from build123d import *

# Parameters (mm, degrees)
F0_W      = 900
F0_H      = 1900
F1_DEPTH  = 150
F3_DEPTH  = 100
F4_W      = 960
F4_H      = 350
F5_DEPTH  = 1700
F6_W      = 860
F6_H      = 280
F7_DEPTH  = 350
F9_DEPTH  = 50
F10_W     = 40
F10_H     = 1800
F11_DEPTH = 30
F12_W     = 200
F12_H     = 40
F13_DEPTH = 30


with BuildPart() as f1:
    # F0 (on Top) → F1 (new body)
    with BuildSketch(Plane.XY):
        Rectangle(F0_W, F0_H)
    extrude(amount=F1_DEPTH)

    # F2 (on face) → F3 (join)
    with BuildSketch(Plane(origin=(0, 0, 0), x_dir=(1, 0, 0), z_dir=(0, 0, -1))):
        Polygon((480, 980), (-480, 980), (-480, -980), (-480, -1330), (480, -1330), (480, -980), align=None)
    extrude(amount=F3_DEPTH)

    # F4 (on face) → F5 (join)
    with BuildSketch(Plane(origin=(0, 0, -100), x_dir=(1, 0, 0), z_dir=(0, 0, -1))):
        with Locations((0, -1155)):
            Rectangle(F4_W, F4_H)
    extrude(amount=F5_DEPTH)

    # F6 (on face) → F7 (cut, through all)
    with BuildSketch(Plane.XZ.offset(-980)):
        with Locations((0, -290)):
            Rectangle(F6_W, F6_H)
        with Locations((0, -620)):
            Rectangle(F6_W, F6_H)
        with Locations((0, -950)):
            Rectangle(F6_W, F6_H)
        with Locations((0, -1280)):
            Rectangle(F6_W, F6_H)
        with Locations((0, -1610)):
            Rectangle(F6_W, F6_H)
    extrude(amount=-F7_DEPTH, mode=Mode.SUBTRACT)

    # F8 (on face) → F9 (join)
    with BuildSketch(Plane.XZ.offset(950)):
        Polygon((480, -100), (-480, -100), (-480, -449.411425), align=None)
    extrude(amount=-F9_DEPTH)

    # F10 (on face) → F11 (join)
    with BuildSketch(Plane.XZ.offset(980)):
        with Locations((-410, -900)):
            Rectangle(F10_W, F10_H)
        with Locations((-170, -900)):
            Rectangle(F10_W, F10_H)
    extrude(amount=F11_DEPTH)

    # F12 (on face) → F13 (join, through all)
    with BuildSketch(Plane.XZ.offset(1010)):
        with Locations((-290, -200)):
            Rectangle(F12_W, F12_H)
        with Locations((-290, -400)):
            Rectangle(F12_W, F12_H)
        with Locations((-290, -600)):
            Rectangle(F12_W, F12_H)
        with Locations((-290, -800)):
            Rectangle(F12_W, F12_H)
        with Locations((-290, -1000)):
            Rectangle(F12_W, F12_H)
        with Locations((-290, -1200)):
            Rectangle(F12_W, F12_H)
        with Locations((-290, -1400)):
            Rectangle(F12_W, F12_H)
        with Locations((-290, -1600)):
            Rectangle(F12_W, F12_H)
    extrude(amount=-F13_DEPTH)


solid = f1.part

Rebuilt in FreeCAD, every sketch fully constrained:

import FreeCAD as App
import Part
import Sketcher

V = App.Vector
Q = App.Units.Quantity


def add_polygon(sketch, points):
    """Adds a closed chain of lines whose ends are joined by coincident constraints."""
    first, n = sketch.GeometryCount, len(points)
    for a, b in zip(points, points[1:] + points[:1]):
        sketch.addGeometry(Part.LineSegment(App.Vector(*a, 0), App.Vector(*b, 0)), False)
    for i in range(n):
        sketch.addConstraint(Sketcher.Constraint("Coincident", first + i, 2, first + (i + 1) % n, 1))

doc = App.newDocument("Part")
body = doc.addObject("PartDesign::Body", "Body")

# Sketch on XY plane
sketch1 = body.newObject("Sketcher::SketchObject", "Sketch")
sketch1.AttachmentSupport = (doc.getObject("XY_Plane"), [""])
sketch1.MapMode = "FlatFace"
add_polygon(sketch1, [(-450, 950), (-450, -950), (450, -950), (450, 950)])  # lines 0-3
sketch1.addConstraint(Sketcher.Constraint("Vertical", 0))
sketch1.addConstraint(Sketcher.Constraint("Horizontal", 1))
sketch1.addConstraint(Sketcher.Constraint("Vertical", 2))
sketch1.addConstraint(Sketcher.Constraint("Horizontal", 3))
sketch1.addConstraint(Sketcher.Constraint("Symmetric", 0, 2, 2, 2, -1, 1))
sketch1.addConstraint(Sketcher.Constraint("DistanceX", 1, 1, 1, 2, Q("900 mm")))
sketch1.addConstraint(Sketcher.Constraint("DistanceY", 0, 2, 0, 1, Q("1900 mm")))
pad1 = body.newObject("PartDesign::Pad", "Pad")
pad1.Profile = sketch1
pad1.Length = 150

# Sketch on XY plane
sketch2 = body.newObject("Sketcher::SketchObject", "Sketch001")
sketch2.AttachmentSupport = (doc.getObject("XY_Plane"), [""])
sketch2.MapMode = "FlatFace"
add_polygon(sketch2, [(480, -980), (-480, -980), (-480, 1330), (480, 1330)])  # lines 0-3
sketch2.addConstraint(Sketcher.Constraint("Horizontal", 0))
sketch2.addConstraint(Sketcher.Constraint("Vertical", 1))
sketch2.addConstraint(Sketcher.Constraint("Horizontal", 2))
sketch2.addConstraint(Sketcher.Constraint("Vertical", 3))
sketch2.addConstraint(Sketcher.Constraint("DistanceX", 0, 2, 0, 1, Q("960 mm")))
sketch2.addConstraint(Sketcher.Constraint("DistanceY", 1, 1, 1, 2, Q("2310 mm")))
sketch2.addConstraint(Sketcher.Constraint("DistanceX", 0, 2, -1, 1, Q("480 mm")))
sketch2.addConstraint(Sketcher.Constraint("DistanceY", 0, 2, -1, 1, Q("980 mm")))
pad2 = body.newObject("PartDesign::Pad", "Pad001")
pad2.Profile = sketch2
pad2.Length = 100
pad2.Reversed = True

# Sketch on XY plane
sketch3 = body.newObject("Sketcher::SketchObject", "Sketch002")
sketch3.AttachmentSupport = (doc.getObject("XY_Plane"), [""])
sketch3.MapMode = "FlatFace"
sketch3.AttachmentOffset = App.Placement(V(0, 0, -100), App.Rotation())
add_polygon(sketch3, [(-480, 980), (-480, 1330), (480, 1330), (480, 980)])  # lines 0-3
sketch3.addConstraint(Sketcher.Constraint("Vertical", 0))
sketch3.addConstraint(Sketcher.Constraint("Horizontal", 1))
sketch3.addConstraint(Sketcher.Constraint("Vertical", 2))
sketch3.addConstraint(Sketcher.Constraint("Horizontal", 3))
sketch3.addConstraint(Sketcher.Constraint("DistanceX", 1, 1, 1, 2, Q("960 mm")))
sketch3.addConstraint(Sketcher.Constraint("DistanceY", 0, 1, 0, 2, Q("350 mm")))
sketch3.addConstraint(Sketcher.Constraint("DistanceX", 0, 2, -1, 1, Q("480 mm")))
sketch3.addConstraint(Sketcher.Constraint("DistanceY", -1, 1, 0, 2, Q("1330 mm")))
pad3 = body.newObject("PartDesign::Pad", "Pad002")
pad3.Profile = sketch3
pad3.Length = 1700
pad3.Reversed = True

# Sketch on XZ plane
sketch4 = body.newObject("Sketcher::SketchObject", "Sketch003")
sketch4.AttachmentSupport = (doc.getObject("XZ_Plane"), [""])
sketch4.MapMode = "FlatFace"
sketch4.AttachmentOffset = App.Placement(V(0, 0, -980), App.Rotation())
add_polygon(sketch4, [(-430, -150), (-430, -430), (430, -430), (430, -150)])  # lines 0-3
add_polygon(sketch4, [(-430, -480), (-430, -760), (430, -760), (430, -480)])  # lines 4-7
add_polygon(sketch4, [(-430, -810), (-430, -1090), (430, -1090), (430, -810)])  # lines 8-11
add_polygon(sketch4, [(-430, -1140), (-430, -1420), (430, -1420), (430, -1140)])  # lines 12-15
add_polygon(sketch4, [(-430, -1470), (-430, -1750), (430, -1750), (430, -1470)])  # lines 16-19
sketch4.addConstraint(Sketcher.Constraint("Vertical", 0))
sketch4.addConstraint(Sketcher.Constraint("Horizontal", 1))
sketch4.addConstraint(Sketcher.Constraint("Vertical", 2))
sketch4.addConstraint(Sketcher.Constraint("Horizontal", 3))
sketch4.addConstraint(Sketcher.Constraint("Vertical", 4))
sketch4.addConstraint(Sketcher.Constraint("Horizontal", 5))
sketch4.addConstraint(Sketcher.Constraint("Vertical", 6))
sketch4.addConstraint(Sketcher.Constraint("Horizontal", 7))
sketch4.addConstraint(Sketcher.Constraint("Vertical", 8))
sketch4.addConstraint(Sketcher.Constraint("Horizontal", 9))
sketch4.addConstraint(Sketcher.Constraint("Vertical", 10))
sketch4.addConstraint(Sketcher.Constraint("Horizontal", 11))
sketch4.addConstraint(Sketcher.Constraint("Vertical", 12))
sketch4.addConstraint(Sketcher.Constraint("Horizontal", 13))
sketch4.addConstraint(Sketcher.Constraint("Vertical", 14))
sketch4.addConstraint(Sketcher.Constraint("Horizontal", 15))
sketch4.addConstraint(Sketcher.Constraint("Vertical", 16))
sketch4.addConstraint(Sketcher.Constraint("Horizontal", 17))
sketch4.addConstraint(Sketcher.Constraint("Vertical", 18))
sketch4.addConstraint(Sketcher.Constraint("Horizontal", 19))
sketch4.addConstraint(Sketcher.Constraint("Vertical", 3, 2, 4, 2))
sketch4.addConstraint(Sketcher.Constraint("Vertical", 2, 2, 5, 2))
sketch4.addConstraint(Sketcher.Constraint("Vertical", 7, 2, 8, 2))
sketch4.addConstraint(Sketcher.Constraint("Vertical", 6, 2, 9, 2))
sketch4.addConstraint(Sketcher.Constraint("Vertical", 11, 2, 12, 2))
sketch4.addConstraint(Sketcher.Constraint("Vertical", 10, 2, 13, 2))
sketch4.addConstraint(Sketcher.Constraint("Vertical", 15, 2, 16, 2))
sketch4.addConstraint(Sketcher.Constraint("Vertical", 14, 2, 17, 2))
sketch4.addConstraint(Sketcher.Constraint("Equal", 2, 4))
sketch4.addConstraint(Sketcher.Constraint("Equal", 6, 8))
sketch4.addConstraint(Sketcher.Constraint("Equal", 10, 12))
sketch4.addConstraint(Sketcher.Constraint("Equal", 14, 16))
sketch4.addConstraint(Sketcher.Constraint("DistanceX", 1, 1, 1, 2, Q("860 mm")))
sketch4.addConstraint(Sketcher.Constraint("DistanceY", 0, 2, 0, 1, Q("280 mm")))
sketch4.addConstraint(Sketcher.Constraint("DistanceX", 0, 2, -1, 1, Q("430 mm")))
sketch4.addConstraint(Sketcher.Constraint("DistanceY", 0, 2, -1, 1, Q("430 mm")))
sketch4.addConstraint(Sketcher.Constraint("DistanceY", 4, 2, -1, 1, Q("760 mm")))
sketch4.addConstraint(Sketcher.Constraint("DistanceY", 8, 2, -1, 1, Q("1090 mm")))
sketch4.addConstraint(Sketcher.Constraint("DistanceY", 12, 2, -1, 1, Q("1420 mm")))
sketch4.addConstraint(Sketcher.Constraint("DistanceY", 16, 2, -1, 1, Q("1750 mm")))
pocket1 = body.newObject("PartDesign::Pocket", "Pocket")
pocket1.Profile = sketch4
pocket1.Type = "ThroughAll"

# Sketch on XZ plane
sketch5 = body.newObject("Sketcher::SketchObject", "Sketch004")
sketch5.AttachmentSupport = (doc.getObject("XZ_Plane"), [""])
sketch5.MapMode = "FlatFace"
sketch5.AttachmentOffset = App.Placement(V(0, 0, 950), App.Rotation())
add_polygon(sketch5, [(480, -100), (-480, -100), (-480, -449)])  # lines 0-2
sketch5.addConstraint(Sketcher.Constraint("Horizontal", 0))
sketch5.addConstraint(Sketcher.Constraint("Vertical", 1))
sketch5.addConstraint(Sketcher.Constraint("DistanceX", 0, 2, 0, 1, Q("960 mm")))
sketch5.addConstraint(Sketcher.Constraint("Angle", 2, Q("20 deg")))
sketch5.addConstraint(Sketcher.Constraint("DistanceX", 0, 2, -1, 1, Q("480 mm")))
sketch5.addConstraint(Sketcher.Constraint("DistanceY", 0, 2, -1, 1, Q("100 mm")))
pad4 = body.newObject("PartDesign::Pad", "Pad003")
pad4.Profile = sketch5
pad4.Length = 50
pad4.Reversed = True

# Sketch on XZ plane
sketch6 = body.newObject("Sketcher::SketchObject", "Sketch005")
sketch6.AttachmentSupport = (doc.getObject("XZ_Plane"), [""])
sketch6.MapMode = "FlatFace"
sketch6.AttachmentOffset = App.Placement(V(0, 0, 980), App.Rotation())
add_polygon(sketch6, [(-430, 0), (-430, -1800), (-390, -1800), (-390, 0)])  # lines 0-3
add_polygon(sketch6, [(-190, 0), (-190, -1800), (-150, -1800), (-150, 0)])  # lines 4-7
sketch6.addConstraint(Sketcher.Constraint("Vertical", 0))
sketch6.addConstraint(Sketcher.Constraint("Horizontal", 1))
sketch6.addConstraint(Sketcher.Constraint("Vertical", 2))
sketch6.addConstraint(Sketcher.Constraint("Horizontal", 3))
sketch6.addConstraint(Sketcher.Constraint("Vertical", 4))
sketch6.addConstraint(Sketcher.Constraint("Horizontal", 5))
sketch6.addConstraint(Sketcher.Constraint("Vertical", 6))
sketch6.addConstraint(Sketcher.Constraint("Horizontal", 7))
sketch6.addConstraint(Sketcher.Constraint("PointOnObject", 2, 2, -1))
sketch6.addConstraint(Sketcher.Constraint("PointOnObject", 6, 2, -1))
sketch6.addConstraint(Sketcher.Constraint("Horizontal", 1, 2, 4, 2))
sketch6.addConstraint(Sketcher.Constraint("Equal", 3, 5))
sketch6.addConstraint(Sketcher.Constraint("DistanceX", 1, 1, 1, 2, Q("40 mm")))
sketch6.addConstraint(Sketcher.Constraint("DistanceY", 0, 2, 0, 1, Q("1800 mm")))
sketch6.addConstraint(Sketcher.Constraint("DistanceX", 0, 2, -1, 1, Q("430 mm")))
sketch6.addConstraint(Sketcher.Constraint("DistanceX", 4, 2, -1, 1, Q("190 mm")))
pad5 = body.newObject("PartDesign::Pad", "Pad004")
pad5.Profile = sketch6
pad5.Length = 30

# Sketch on XZ plane
sketch7 = body.newObject("Sketcher::SketchObject", "Sketch006")
sketch7.AttachmentSupport = (doc.getObject("XZ_Plane"), [""])
sketch7.MapMode = "FlatFace"
sketch7.AttachmentOffset = App.Placement(V(0, 0, 1010), App.Rotation())
add_polygon(sketch7, [(-390, -180), (-390, -220), (-190, -220), (-190, -180)])  # lines 0-3
add_polygon(sketch7, [(-390, -380), (-390, -420), (-190, -420), (-190, -380)])  # lines 4-7
add_polygon(sketch7, [(-390, -580), (-390, -620), (-190, -620), (-190, -580)])  # lines 8-11
add_polygon(sketch7, [(-390, -780), (-390, -820), (-190, -820), (-190, -780)])  # lines 12-15
add_polygon(sketch7, [(-390, -980), (-390, -1020), (-190, -1020), (-190, -980)])  # lines 16-19
add_polygon(sketch7, [(-390, -1180), (-390, -1220), (-190, -1220), (-190, -1180)])  # lines 20-23
add_polygon(sketch7, [(-390, -1380), (-390, -1420), (-190, -1420), (-190, -1380)])  # lines 24-27
add_polygon(sketch7, [(-390, -1580), (-390, -1620), (-190, -1620), (-190, -1580)])  # lines 28-31
sketch7.addConstraint(Sketcher.Constraint("Vertical", 0))
sketch7.addConstraint(Sketcher.Constraint("Horizontal", 1))
sketch7.addConstraint(Sketcher.Constraint("Vertical", 2))
sketch7.addConstraint(Sketcher.Constraint("Horizontal", 3))
sketch7.addConstraint(Sketcher.Constraint("Vertical", 4))
sketch7.addConstraint(Sketcher.Constraint("Horizontal", 5))
sketch7.addConstraint(Sketcher.Constraint("Vertical", 6))
sketch7.addConstraint(Sketcher.Constraint("Horizontal", 7))
sketch7.addConstraint(Sketcher.Constraint("Vertical", 8))
sketch7.addConstraint(Sketcher.Constraint("Horizontal", 9))
sketch7.addConstraint(Sketcher.Constraint("Vertical", 10))
sketch7.addConstraint(Sketcher.Constraint("Horizontal", 11))
sketch7.addConstraint(Sketcher.Constraint("Vertical", 12))
sketch7.addConstraint(Sketcher.Constraint("Horizontal", 13))
sketch7.addConstraint(Sketcher.Constraint("Vertical", 14))
sketch7.addConstraint(Sketcher.Constraint("Horizontal", 15))
sketch7.addConstraint(Sketcher.Constraint("Vertical", 16))
sketch7.addConstraint(Sketcher.Constraint("Horizontal", 17))
sketch7.addConstraint(Sketcher.Constraint("Vertical", 18))
sketch7.addConstraint(Sketcher.Constraint("Horizontal", 19))
sketch7.addConstraint(Sketcher.Constraint("Vertical", 20))
sketch7.addConstraint(Sketcher.Constraint("Horizontal", 21))
sketch7.addConstraint(Sketcher.Constraint("Vertical", 22))
sketch7.addConstraint(Sketcher.Constraint("Horizontal", 23))
sketch7.addConstraint(Sketcher.Constraint("Vertical", 24))
sketch7.addConstraint(Sketcher.Constraint("Horizontal", 25))
sketch7.addConstraint(Sketcher.Constraint("Vertical", 26))
sketch7.addConstraint(Sketcher.Constraint("Horizontal", 27))
sketch7.addConstraint(Sketcher.Constraint("Vertical", 28))
sketch7.addConstraint(Sketcher.Constraint("Horizontal", 29))
sketch7.addConstraint(Sketcher.Constraint("Vertical", 30))
sketch7.addConstraint(Sketcher.Constraint("Horizontal", 31))
sketch7.addConstraint(Sketcher.Constraint("Vertical", 3, 2, 4, 2))
sketch7.addConstraint(Sketcher.Constraint("Vertical", 2, 2, 5, 2))
sketch7.addConstraint(Sketcher.Constraint("Vertical", 7, 2, 8, 2))
sketch7.addConstraint(Sketcher.Constraint("Vertical", 6, 2, 9, 2))
sketch7.addConstraint(Sketcher.Constraint("Vertical", 11, 2, 12, 2))
sketch7.addConstraint(Sketcher.Constraint("Vertical", 10, 2, 13, 2))
sketch7.addConstraint(Sketcher.Constraint("Vertical", 15, 2, 16, 2))
sketch7.addConstraint(Sketcher.Constraint("Vertical", 14, 2, 17, 2))
sketch7.addConstraint(Sketcher.Constraint("Vertical", 19, 2, 20, 2))
sketch7.addConstraint(Sketcher.Constraint("Vertical", 18, 2, 21, 2))
sketch7.addConstraint(Sketcher.Constraint("Vertical", 23, 2, 24, 2))
sketch7.addConstraint(Sketcher.Constraint("Vertical", 22, 2, 25, 2))
sketch7.addConstraint(Sketcher.Constraint("Vertical", 27, 2, 28, 2))
sketch7.addConstraint(Sketcher.Constraint("Vertical", 26, 2, 29, 2))
sketch7.addConstraint(Sketcher.Constraint("Equal", 2, 4))
sketch7.addConstraint(Sketcher.Constraint("Equal", 6, 8))
sketch7.addConstraint(Sketcher.Constraint("Equal", 10, 12))
sketch7.addConstraint(Sketcher.Constraint("Equal", 14, 16))
sketch7.addConstraint(Sketcher.Constraint("Equal", 18, 20))
sketch7.addConstraint(Sketcher.Constraint("Equal", 22, 24))
sketch7.addConstraint(Sketcher.Constraint("Equal", 26, 28))
sketch7.addConstraint(Sketcher.Constraint("DistanceX", 1, 1, 1, 2, Q("200 mm")))
sketch7.addConstraint(Sketcher.Constraint("DistanceY", 0, 2, 0, 1, Q("40 mm")))
sketch7.addConstraint(Sketcher.Constraint("DistanceX", 0, 2, -1, 1, Q("390 mm")))
sketch7.addConstraint(Sketcher.Constraint("DistanceY", 0, 2, -1, 1, Q("220 mm")))
sketch7.addConstraint(Sketcher.Constraint("DistanceY", 4, 2, -1, 1, Q("420 mm")))
sketch7.addConstraint(Sketcher.Constraint("DistanceY", 8, 2, -1, 1, Q("620 mm")))
sketch7.addConstraint(Sketcher.Constraint("DistanceY", 12, 2, -1, 1, Q("820 mm")))
sketch7.addConstraint(Sketcher.Constraint("DistanceY", 16, 2, -1, 1, Q("1020 mm")))
sketch7.addConstraint(Sketcher.Constraint("DistanceY", 20, 2, -1, 1, Q("1220 mm")))
sketch7.addConstraint(Sketcher.Constraint("DistanceY", 24, 2, -1, 1, Q("1420 mm")))
sketch7.addConstraint(Sketcher.Constraint("DistanceY", 28, 2, -1, 1, Q("1620 mm")))
pad6 = body.newObject("PartDesign::Pad", "Pad005")
pad6.Profile = sketch7
pad6.Length = 30
pad6.Reversed = True

doc.recompute()
